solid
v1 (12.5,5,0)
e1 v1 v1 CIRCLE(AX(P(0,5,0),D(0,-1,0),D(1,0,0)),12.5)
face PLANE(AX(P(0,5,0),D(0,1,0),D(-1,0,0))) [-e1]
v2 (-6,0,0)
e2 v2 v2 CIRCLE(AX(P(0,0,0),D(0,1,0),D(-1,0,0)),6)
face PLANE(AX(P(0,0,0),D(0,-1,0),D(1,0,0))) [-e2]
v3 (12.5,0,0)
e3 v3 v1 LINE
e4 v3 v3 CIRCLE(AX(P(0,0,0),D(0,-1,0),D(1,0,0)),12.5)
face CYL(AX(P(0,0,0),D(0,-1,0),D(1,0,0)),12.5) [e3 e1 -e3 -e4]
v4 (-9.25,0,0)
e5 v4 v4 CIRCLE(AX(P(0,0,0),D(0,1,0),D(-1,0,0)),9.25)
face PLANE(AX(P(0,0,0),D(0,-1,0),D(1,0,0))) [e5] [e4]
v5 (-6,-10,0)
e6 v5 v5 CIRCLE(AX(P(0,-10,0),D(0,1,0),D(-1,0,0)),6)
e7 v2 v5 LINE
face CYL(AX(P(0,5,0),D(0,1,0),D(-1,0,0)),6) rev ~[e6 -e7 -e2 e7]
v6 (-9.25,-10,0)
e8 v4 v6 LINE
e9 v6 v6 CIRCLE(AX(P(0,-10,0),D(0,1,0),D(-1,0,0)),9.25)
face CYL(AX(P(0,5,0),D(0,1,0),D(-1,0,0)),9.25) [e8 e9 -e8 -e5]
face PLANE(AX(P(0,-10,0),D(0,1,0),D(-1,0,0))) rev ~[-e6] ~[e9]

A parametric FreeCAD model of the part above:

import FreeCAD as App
import Part
import Sketcher

V = App.Vector

doc = App.newDocument("Part")
body = doc.addObject("PartDesign::Body", "Body")

sketch1 = body.newObject("Sketcher::SketchObject", "Sketch")
sketch1.AttachmentSupport = (doc.getObject("XZ_Plane"), [""])
sketch1.MapMode = "FlatFace"
sketch1.addGeometry(Part.Circle(V(0, 0, 0), V(0, 0, 1), 12), False)
sketch1.addConstraint([
    Sketcher.Constraint("Coincident", 0, 3, -1, 1),
    Sketcher.Constraint("Diameter", 0, 25.0),
])
pad1 = body.newObject("PartDesign::Pad", "Pad")
pad1.Profile = sketch1
pad1.Length = 5
pad1.Reversed = True

sketch2 = body.newObject("Sketcher::SketchObject", "Sketch001")
sketch2.AttachmentSupport = (doc.getObject("XZ_Plane"), [""])
sketch2.MapMode = "FlatFace"
sketch2.AttachmentOffset = App.Placement(V(0, 0, -5), App.Rotation())
sketch2.addGeometry([
    Part.Circle(V(0, 0, 0), V(0, 0, 1), 9),
    Part.Circle(V(0, 0, 0), V(0, 0, 1), 6),
], False)
sketch2.addConstraint([
    Sketcher.Constraint("Coincident", 0, 3, -1, 1),
    Sketcher.Constraint("Coincident", 1, 3, -1, 1),
    Sketcher.Constraint("Diameter", 1, 12.0),
    Sketcher.Constraint("Diameter", 0, 18.5),
])
pad2 = body.newObject("PartDesign::Pad", "Pad001")
pad2.Profile = sketch2
pad2.Length = 15

doc.recompute()
